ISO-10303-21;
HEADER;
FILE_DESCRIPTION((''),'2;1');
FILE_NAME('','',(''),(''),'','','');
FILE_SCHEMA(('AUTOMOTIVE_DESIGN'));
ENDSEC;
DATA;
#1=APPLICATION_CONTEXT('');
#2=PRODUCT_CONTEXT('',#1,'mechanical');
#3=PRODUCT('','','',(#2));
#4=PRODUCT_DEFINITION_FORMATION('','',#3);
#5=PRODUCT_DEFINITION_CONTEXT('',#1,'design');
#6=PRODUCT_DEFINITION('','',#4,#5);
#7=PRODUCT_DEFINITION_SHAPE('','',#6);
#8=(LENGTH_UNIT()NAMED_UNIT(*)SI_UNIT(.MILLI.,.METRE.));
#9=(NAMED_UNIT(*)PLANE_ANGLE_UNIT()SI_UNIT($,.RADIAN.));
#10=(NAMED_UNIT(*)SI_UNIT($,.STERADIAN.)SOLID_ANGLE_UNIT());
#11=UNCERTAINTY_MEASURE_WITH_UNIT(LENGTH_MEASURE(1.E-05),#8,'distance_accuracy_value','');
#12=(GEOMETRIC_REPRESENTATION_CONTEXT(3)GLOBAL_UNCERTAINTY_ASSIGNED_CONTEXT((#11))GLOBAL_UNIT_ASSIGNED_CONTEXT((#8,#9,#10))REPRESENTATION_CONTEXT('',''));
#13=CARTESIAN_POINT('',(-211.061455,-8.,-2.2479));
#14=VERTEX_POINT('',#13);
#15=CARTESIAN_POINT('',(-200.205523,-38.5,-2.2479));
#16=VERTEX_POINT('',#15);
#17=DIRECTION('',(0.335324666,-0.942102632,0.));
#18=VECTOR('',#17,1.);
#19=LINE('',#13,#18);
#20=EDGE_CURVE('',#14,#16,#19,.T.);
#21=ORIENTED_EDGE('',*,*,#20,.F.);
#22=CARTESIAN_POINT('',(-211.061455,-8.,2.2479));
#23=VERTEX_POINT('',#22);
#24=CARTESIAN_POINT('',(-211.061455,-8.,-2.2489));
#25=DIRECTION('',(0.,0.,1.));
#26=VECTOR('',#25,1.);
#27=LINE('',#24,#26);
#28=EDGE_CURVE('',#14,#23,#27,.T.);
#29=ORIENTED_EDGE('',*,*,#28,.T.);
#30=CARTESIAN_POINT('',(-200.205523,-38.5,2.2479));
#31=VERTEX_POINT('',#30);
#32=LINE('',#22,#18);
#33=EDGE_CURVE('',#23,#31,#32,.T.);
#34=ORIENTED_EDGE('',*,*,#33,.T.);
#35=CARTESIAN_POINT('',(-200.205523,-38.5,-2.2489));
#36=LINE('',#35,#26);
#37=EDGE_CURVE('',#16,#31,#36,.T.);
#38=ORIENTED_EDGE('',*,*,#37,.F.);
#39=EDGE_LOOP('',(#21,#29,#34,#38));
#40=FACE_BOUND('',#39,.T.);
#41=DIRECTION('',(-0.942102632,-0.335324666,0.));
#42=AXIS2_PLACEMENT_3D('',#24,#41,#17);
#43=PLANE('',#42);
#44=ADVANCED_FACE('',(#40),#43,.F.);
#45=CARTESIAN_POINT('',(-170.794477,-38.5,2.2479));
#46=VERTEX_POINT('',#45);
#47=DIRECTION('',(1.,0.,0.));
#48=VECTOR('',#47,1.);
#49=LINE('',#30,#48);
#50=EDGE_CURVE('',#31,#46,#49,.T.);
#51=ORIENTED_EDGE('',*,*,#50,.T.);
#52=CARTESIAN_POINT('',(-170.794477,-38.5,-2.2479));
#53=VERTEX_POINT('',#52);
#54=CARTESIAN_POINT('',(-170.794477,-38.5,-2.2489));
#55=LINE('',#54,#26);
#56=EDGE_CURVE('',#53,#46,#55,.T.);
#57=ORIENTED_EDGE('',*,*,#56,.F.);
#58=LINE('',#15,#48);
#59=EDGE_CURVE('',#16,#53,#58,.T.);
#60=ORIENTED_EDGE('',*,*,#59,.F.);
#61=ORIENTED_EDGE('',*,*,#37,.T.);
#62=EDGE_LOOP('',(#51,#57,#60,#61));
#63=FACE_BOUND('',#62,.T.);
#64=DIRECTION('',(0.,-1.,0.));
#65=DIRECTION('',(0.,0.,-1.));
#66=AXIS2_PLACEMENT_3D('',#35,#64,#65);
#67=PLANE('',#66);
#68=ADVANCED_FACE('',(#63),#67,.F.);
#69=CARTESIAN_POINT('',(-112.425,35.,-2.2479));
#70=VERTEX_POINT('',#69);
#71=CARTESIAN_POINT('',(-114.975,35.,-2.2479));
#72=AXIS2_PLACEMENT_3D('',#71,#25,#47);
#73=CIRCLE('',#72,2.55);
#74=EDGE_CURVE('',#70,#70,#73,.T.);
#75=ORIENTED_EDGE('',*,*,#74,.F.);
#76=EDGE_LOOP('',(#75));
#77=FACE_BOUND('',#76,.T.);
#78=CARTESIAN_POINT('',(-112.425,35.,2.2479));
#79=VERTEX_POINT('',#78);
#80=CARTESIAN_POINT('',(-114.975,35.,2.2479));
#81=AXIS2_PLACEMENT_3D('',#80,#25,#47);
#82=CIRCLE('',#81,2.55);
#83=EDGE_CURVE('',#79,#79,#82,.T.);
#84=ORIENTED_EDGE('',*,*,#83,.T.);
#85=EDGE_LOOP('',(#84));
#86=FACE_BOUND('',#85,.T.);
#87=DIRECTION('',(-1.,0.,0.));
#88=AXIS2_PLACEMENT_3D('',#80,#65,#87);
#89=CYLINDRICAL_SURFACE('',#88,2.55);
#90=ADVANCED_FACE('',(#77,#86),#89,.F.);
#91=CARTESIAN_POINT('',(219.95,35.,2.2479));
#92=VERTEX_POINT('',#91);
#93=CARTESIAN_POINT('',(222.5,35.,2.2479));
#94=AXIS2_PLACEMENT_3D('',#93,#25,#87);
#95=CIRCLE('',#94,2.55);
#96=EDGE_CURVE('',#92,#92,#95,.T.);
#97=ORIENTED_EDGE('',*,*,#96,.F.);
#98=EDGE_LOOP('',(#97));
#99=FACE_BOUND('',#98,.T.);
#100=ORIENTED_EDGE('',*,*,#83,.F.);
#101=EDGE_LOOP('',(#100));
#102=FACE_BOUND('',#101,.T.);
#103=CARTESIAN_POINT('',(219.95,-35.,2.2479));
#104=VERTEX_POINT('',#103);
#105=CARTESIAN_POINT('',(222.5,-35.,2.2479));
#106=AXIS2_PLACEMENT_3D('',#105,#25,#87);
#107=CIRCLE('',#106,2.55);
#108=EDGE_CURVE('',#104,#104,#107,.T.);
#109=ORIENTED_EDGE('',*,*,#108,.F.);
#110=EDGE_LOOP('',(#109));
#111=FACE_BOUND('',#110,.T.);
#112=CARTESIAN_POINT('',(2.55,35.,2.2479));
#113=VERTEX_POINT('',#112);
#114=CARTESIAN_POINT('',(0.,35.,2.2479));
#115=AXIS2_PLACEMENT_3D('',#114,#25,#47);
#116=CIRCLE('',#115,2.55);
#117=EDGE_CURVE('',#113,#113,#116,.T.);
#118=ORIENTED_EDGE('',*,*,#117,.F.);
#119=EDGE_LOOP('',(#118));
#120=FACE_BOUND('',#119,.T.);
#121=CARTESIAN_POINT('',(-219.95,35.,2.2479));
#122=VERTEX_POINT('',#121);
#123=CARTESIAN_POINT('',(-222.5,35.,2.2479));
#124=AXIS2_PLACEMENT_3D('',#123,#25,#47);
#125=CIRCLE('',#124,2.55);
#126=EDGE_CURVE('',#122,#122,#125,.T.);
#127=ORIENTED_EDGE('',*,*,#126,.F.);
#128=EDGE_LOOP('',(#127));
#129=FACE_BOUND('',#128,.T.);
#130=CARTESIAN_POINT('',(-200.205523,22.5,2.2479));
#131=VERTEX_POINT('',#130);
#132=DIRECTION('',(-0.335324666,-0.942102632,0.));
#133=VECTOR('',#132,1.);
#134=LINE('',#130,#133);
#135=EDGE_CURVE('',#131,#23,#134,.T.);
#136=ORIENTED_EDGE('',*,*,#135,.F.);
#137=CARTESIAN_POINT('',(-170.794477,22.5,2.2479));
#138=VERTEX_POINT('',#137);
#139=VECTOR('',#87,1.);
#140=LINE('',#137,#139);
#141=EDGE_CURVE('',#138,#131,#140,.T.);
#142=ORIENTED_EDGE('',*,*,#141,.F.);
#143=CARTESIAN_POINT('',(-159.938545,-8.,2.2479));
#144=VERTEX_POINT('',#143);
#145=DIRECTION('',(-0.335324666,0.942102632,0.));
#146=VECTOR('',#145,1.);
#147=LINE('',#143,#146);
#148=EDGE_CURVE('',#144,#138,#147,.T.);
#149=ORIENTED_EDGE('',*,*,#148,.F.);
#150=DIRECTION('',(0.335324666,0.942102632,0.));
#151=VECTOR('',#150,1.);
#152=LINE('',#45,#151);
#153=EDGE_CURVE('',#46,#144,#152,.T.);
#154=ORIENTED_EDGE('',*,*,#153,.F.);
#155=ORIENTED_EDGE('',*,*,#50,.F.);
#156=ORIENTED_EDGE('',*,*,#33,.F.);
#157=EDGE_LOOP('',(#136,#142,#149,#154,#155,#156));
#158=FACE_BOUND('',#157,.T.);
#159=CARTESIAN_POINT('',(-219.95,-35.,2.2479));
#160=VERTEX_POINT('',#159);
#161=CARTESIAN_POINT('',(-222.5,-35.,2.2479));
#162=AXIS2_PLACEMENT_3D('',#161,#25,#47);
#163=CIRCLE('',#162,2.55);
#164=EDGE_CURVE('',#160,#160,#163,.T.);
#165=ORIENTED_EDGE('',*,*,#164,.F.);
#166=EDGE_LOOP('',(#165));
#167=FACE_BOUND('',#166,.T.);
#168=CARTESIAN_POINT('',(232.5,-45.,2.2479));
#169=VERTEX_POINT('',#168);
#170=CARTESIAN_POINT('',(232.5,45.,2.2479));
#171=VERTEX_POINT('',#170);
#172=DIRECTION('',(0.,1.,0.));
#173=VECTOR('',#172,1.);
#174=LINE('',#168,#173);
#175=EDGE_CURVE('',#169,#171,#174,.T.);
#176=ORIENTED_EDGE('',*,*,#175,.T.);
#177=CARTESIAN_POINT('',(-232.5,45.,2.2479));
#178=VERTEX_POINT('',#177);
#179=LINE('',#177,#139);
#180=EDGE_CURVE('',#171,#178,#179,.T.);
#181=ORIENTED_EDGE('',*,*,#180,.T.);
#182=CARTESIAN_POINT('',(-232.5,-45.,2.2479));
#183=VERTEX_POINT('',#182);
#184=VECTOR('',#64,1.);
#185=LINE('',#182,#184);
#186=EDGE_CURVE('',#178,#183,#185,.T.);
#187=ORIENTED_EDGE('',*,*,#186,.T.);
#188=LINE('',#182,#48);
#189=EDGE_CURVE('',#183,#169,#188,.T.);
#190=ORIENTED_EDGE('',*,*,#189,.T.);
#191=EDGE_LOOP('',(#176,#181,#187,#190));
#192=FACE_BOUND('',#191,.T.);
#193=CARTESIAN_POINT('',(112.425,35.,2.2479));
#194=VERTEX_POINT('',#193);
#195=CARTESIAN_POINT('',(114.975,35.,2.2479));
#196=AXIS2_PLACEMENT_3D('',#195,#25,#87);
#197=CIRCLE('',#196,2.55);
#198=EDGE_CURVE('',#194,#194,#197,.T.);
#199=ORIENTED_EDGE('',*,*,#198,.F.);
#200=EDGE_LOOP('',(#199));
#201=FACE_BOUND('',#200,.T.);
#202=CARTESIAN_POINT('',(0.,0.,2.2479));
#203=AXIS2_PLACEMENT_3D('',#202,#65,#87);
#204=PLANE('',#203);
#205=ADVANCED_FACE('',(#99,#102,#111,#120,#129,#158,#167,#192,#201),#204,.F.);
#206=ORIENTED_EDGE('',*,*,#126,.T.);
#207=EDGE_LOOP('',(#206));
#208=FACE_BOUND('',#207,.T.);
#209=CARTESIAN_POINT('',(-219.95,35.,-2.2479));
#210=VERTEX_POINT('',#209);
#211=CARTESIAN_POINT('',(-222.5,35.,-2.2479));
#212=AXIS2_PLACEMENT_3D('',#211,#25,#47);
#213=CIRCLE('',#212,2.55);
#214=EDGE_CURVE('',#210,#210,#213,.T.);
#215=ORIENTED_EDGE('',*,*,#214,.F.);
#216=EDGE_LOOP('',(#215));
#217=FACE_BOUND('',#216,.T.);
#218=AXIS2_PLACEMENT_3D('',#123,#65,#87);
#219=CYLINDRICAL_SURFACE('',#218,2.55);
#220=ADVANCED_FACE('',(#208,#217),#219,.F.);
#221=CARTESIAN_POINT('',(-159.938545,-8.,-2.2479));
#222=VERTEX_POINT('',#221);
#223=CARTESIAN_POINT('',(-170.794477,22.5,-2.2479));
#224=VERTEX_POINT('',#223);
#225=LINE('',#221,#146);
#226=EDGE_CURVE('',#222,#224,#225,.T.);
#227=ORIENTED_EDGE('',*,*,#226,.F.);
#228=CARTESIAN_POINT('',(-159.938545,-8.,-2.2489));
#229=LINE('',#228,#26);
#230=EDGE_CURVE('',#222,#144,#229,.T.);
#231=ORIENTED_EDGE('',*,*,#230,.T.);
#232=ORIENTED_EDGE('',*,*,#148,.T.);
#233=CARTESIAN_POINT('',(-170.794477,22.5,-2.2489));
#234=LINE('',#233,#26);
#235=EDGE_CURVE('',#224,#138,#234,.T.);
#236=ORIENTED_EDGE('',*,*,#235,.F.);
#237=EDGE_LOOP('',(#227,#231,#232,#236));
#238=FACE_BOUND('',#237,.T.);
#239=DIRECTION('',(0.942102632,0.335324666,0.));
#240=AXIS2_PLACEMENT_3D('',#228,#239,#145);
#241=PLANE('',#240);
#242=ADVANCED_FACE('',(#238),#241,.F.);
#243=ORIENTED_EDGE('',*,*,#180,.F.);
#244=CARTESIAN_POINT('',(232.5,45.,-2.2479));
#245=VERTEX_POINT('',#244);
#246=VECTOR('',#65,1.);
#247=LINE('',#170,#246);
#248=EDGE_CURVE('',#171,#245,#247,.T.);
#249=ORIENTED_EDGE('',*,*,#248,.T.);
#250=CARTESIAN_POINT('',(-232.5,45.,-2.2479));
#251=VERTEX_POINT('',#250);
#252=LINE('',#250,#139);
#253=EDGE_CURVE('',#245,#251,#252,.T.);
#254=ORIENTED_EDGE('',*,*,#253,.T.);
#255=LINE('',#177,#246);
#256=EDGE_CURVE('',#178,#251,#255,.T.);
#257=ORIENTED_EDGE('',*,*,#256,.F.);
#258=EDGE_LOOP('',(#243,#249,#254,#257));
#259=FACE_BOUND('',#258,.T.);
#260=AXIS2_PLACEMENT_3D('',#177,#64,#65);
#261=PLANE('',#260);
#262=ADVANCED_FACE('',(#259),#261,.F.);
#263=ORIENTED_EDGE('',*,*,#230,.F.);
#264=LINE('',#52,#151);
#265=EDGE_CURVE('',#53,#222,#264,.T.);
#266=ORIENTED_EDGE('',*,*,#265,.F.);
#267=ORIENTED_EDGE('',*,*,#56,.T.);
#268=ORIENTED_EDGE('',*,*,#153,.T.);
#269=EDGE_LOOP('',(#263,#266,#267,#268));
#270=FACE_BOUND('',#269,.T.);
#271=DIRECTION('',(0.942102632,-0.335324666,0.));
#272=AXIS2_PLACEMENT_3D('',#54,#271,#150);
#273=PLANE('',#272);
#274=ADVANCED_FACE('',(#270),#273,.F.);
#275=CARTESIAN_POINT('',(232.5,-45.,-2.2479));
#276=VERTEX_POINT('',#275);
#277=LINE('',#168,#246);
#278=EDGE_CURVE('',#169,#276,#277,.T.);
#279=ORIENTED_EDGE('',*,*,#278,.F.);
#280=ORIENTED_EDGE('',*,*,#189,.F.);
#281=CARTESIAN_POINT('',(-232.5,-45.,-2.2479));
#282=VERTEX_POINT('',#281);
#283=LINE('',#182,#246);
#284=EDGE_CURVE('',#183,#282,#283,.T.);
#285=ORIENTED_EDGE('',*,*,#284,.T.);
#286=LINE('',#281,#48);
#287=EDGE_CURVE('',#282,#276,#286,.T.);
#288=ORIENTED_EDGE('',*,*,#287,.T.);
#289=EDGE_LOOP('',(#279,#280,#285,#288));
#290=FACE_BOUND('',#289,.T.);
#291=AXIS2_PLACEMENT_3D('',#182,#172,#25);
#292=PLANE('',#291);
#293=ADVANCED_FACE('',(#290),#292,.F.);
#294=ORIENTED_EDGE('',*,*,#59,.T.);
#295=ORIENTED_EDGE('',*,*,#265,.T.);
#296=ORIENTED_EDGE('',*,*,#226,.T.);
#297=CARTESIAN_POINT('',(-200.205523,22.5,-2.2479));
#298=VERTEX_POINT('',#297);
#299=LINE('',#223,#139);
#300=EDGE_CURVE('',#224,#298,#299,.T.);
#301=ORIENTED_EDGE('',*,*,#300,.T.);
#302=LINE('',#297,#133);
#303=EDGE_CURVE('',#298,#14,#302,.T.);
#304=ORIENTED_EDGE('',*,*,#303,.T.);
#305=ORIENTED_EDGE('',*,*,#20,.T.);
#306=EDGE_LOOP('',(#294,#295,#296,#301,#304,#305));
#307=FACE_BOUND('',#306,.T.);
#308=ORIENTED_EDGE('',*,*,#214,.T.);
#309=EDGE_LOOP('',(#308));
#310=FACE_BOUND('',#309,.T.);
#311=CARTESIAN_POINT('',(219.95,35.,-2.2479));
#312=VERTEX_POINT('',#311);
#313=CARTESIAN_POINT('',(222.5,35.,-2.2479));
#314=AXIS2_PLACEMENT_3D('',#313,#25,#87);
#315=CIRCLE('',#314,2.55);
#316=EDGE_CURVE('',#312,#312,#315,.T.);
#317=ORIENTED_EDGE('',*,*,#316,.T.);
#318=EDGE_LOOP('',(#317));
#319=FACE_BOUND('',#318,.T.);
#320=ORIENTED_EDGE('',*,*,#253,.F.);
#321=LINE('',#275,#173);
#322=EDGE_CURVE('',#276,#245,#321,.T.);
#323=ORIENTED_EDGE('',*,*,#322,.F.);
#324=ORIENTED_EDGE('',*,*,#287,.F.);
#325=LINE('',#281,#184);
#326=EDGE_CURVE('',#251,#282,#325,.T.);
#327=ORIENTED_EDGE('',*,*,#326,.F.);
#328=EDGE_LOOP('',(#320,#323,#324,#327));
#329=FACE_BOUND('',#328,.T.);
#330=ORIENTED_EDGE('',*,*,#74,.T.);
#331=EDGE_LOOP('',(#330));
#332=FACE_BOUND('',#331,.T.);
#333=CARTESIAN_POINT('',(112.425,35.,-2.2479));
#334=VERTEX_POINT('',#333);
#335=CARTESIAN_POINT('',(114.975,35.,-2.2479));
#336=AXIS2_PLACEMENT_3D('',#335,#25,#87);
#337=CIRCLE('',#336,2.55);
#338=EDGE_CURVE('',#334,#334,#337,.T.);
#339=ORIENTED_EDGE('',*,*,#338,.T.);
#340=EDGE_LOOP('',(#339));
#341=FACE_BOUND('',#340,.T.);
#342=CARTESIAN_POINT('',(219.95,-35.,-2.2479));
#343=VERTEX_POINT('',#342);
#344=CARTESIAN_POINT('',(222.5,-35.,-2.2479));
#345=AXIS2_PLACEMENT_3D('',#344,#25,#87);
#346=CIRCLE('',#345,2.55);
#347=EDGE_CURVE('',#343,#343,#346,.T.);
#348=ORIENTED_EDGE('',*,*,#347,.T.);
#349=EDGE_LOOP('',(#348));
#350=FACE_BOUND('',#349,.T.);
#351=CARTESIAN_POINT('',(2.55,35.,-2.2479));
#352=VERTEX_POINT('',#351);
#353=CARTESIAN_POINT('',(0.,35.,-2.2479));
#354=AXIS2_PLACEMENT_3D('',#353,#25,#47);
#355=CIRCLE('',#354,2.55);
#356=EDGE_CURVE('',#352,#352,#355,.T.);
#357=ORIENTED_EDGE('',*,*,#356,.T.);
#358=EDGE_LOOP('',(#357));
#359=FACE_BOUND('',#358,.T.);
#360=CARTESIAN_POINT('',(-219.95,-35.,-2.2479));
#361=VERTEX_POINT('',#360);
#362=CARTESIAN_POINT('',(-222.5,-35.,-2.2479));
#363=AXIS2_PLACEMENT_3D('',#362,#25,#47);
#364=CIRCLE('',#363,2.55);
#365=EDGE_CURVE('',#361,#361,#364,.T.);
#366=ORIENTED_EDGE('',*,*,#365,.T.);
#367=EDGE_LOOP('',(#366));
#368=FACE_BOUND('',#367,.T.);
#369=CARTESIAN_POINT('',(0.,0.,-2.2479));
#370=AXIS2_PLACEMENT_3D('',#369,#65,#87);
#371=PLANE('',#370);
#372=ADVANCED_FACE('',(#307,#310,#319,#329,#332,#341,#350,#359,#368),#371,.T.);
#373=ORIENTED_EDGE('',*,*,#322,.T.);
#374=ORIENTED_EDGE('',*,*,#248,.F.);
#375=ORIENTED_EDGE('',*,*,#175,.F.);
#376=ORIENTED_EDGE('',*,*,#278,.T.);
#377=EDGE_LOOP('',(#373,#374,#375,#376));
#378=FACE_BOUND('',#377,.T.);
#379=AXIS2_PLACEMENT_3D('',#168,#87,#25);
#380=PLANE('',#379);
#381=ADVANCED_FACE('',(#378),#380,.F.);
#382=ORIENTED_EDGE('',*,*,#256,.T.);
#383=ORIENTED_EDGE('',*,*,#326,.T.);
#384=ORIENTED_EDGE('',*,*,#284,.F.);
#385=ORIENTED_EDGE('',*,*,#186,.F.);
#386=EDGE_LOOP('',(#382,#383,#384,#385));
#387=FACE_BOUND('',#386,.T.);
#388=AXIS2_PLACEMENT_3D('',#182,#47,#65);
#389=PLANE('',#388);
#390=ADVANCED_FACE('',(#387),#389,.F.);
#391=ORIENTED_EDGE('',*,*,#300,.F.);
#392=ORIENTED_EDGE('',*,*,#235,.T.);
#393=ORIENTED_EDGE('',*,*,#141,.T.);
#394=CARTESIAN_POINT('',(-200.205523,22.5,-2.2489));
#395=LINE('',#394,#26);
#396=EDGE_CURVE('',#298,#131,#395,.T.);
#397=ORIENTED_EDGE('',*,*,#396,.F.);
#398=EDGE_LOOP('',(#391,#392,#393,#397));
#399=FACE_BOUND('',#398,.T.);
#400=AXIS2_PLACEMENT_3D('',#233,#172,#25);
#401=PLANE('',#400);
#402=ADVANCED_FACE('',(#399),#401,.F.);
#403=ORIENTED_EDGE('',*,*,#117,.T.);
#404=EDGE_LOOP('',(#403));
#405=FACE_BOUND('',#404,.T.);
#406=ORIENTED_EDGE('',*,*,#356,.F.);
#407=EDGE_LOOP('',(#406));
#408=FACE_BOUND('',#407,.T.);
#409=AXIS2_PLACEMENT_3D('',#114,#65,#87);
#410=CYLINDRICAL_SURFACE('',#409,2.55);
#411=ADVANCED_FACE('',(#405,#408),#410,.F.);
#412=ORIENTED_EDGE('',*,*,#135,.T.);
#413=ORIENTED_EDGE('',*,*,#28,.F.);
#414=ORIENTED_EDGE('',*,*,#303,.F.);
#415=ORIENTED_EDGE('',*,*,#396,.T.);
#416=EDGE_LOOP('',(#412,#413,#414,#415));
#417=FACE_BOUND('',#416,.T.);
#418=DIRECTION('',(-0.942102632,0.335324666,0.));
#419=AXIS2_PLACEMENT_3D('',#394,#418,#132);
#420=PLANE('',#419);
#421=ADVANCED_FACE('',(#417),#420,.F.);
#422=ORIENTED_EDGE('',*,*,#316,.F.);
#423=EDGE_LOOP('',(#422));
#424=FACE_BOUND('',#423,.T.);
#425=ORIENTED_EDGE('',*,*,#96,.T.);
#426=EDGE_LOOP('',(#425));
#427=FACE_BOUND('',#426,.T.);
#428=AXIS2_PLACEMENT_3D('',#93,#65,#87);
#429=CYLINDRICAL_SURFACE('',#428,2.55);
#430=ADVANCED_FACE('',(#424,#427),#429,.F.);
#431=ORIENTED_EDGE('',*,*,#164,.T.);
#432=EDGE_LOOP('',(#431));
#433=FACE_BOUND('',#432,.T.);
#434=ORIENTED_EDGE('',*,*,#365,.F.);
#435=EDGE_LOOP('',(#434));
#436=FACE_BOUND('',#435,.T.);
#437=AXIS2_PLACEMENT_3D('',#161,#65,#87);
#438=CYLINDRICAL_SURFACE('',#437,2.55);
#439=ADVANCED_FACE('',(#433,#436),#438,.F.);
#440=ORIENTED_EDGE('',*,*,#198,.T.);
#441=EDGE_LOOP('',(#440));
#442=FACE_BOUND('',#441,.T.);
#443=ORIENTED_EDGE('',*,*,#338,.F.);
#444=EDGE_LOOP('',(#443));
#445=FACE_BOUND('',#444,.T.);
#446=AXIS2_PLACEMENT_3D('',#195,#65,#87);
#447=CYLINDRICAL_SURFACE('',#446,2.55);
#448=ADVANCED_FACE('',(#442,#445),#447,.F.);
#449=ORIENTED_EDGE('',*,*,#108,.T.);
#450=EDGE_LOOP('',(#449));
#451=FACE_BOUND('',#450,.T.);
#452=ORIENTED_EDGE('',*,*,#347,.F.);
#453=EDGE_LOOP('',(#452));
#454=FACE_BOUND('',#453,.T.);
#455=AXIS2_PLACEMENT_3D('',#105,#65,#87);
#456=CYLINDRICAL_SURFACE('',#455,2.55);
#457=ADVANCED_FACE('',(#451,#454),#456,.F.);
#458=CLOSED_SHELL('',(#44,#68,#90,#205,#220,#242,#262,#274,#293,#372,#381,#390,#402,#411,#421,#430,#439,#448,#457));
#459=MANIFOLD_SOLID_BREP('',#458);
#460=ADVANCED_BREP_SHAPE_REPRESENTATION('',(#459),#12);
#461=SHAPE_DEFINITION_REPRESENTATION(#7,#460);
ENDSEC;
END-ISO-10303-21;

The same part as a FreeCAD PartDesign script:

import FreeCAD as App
import Part
import Sketcher

V = App.Vector

doc = App.newDocument("Part")
body = doc.addObject("PartDesign::Body", "Body")

sketch1 = body.newObject("Sketcher::SketchObject", "Sketch")
sketch1.AttachmentSupport = (doc.getObject("XY_Plane"), [""])
sketch1.MapMode = "FlatFace"
sketch1.addGeometry([
    Part.LineSegment(V(-232.5, 45, 0), V(-232.5, -45, 0)),
    Part.LineSegment(V(-232.5, -45, 0), V(232.5, -45, 0)),
    Part.LineSegment(V(232.5, -45, 0), V(232.5, 45, 0)),
    Part.LineSegment(V(232.5, 45, 0), V(-232.5, 45, 0)),
    Part.Circle(V(-222.5, -35, 0), V(0, 0, 1), 2.5),
    Part.Circle(V(222.5, -35, 0), V(0, 0, 1), 2.5),
    Part.Circle(V(-222.5, 35, 0), V(0, 0, 1), 2.5),
    Part.Circle(V(-115, 35, 0), V(0, 0, 1), 2.5),
    Part.Circle(V(0, 35, 0), V(0, 0, 1), 2.5),
    Part.Circle(V(115, 35, 0), V(0, 0, 1), 2.5),
    Part.Circle(V(222.5, 35, 0), V(0, 0, 1), 2.5),
], False)
sketch1.addConstraint([
    Sketcher.Constraint("Coincident", 0, 2, 1, 1),
    Sketcher.Constraint("Coincident", 1, 2, 2, 1),
    Sketcher.Constraint("Coincident", 2, 2, 3, 1),
    Sketcher.Constraint("Coincident", 3, 2, 0, 1),
    Sketcher.Constraint("Vertical", 0),
    Sketcher.Constraint("Horizontal", 1),
    Sketcher.Constraint("Vertical", 2),
    Sketcher.Constraint("Horizontal", 3),
    Sketcher.Constraint("Equal", 4, 5),
    Sketcher.Constraint("Equal", 5, 6),
    Sketcher.Constraint("Equal", 6, 7),
    Sketcher.Constraint("Equal", 7, 8),
    Sketcher.Constraint("Equal", 8, 9),
    Sketcher.Constraint("Equal", 9, 10),
    Sketcher.Constraint("Symmetric", 5, 3, 6, 3, -1, 1),
    Sketcher.Constraint("Symmetric", 4, 3, 10, 3, -1, 1),
    Sketcher.Constraint("Symmetric", 0, 2, 2, 2, -1, 1),
    Sketcher.Constraint("Symmetric", 4, 3, 5, 3, -2),
    Sketcher.Constraint("Symmetric", 7, 3, 9, 3, -2),
    Sketcher.Constraint("PointOnObject", 8, 3, -2),
    Sketcher.Constraint("Horizontal", 6, 3, 7, 3),
    Sketcher.Constraint("Horizontal", 7, 3, 8, 3),
    Sketcher.Constraint("Diameter", 4, 5.1),
    Sketcher.Constraint("DistanceX", 1, 1, 1, 2, 465.0),
    Sketcher.Constraint("DistanceY", 0, 2, 0, 1, 90.0),
    Sketcher.Constraint("DistanceY", 4, 3, -1, 1, 35.0),
    Sketcher.Constraint("DistanceX", 4, 3, 5, 3, 445.0),
    Sketcher.Constraint("DistanceX", 7, 3, 9, 3, 229.95),
])
pad1 = body.newObject("PartDesign::Pad", "Pad")
pad1.Profile = sketch1
pad1.Length = 4.4958
pad1.Midplane = True

sketch2 = body.newObject("Sketcher::SketchObject", "Sketch001")
sketch2.AttachmentSupport = (doc.getObject("XY_Plane"), [""])
sketch2.MapMode = "FlatFace"
sketch2.AttachmentOffset = App.Placement(V(0, 0, 2.2479), App.Rotation())
sketch2.addGeometry([
    Part.LineSegment(V(-160, -8, 0), V(-171, 22, 0)),
    Part.LineSegment(V(-171, 22, 0), V(-200, 22, 0)),
    Part.LineSegment(V(-200, 22, 0), V(-211, -8, 0)),
    Part.LineSegment(V(-211, -8, 0), V(-200, -38, 0)),
    Part.LineSegment(V(-200, -38, 0), V(-171, -38, 0)),
    Part.LineSegment(V(-171, -38, 0), V(-160, -8, 0)),
], False)
sketch2.addConstraint([
    Sketcher.Constraint("Coincident", 0, 2, 1, 1),
    Sketcher.Constraint("Coincident", 1, 2, 2, 1),
    Sketcher.Constraint("Coincident", 2, 2, 3, 1),
    Sketcher.Constraint("Coincident", 3, 2, 4, 1),
    Sketcher.Constraint("Coincident", 4, 2, 5, 1),
    Sketcher.Constraint("Coincident", 5, 2, 0, 1),
    Sketcher.Constraint("Horizontal", 1),
    Sketcher.Constraint("Horizontal", 4),
    Sketcher.Constraint("Parallel", 0, 3),
    Sketcher.Constraint("Parallel", 2, 5),
    Sketcher.Constraint("Horizontal", 2, 2, 5, 2),
    Sketcher.Constraint("Vertical", 1, 2, 3, 2),
    Sketcher.Constraint("Vertical", 0, 2, 4, 2),
    Sketcher.Constraint("DistanceY", 2, 2, -1, 1, 8.0),
    Sketcher.Constraint("DistanceY", 3, 2, 1, 2, 61.0),
    Sketcher.Constraint("DistanceX", 1, 2, 1, 1, 29.411047),
    Sketcher.Constraint("DistanceX", 2, 2, 0, 2, 40.266979),
    Sketcher.Constraint("DistanceX", 0, 2, -1, 1, 170.794477),
])
pocket1 = body.newObject("PartDesign::Pocket", "Pocket")
pocket1.Profile = sketch2
pocket1.Type = "UpToFirst"

doc.recompute()
